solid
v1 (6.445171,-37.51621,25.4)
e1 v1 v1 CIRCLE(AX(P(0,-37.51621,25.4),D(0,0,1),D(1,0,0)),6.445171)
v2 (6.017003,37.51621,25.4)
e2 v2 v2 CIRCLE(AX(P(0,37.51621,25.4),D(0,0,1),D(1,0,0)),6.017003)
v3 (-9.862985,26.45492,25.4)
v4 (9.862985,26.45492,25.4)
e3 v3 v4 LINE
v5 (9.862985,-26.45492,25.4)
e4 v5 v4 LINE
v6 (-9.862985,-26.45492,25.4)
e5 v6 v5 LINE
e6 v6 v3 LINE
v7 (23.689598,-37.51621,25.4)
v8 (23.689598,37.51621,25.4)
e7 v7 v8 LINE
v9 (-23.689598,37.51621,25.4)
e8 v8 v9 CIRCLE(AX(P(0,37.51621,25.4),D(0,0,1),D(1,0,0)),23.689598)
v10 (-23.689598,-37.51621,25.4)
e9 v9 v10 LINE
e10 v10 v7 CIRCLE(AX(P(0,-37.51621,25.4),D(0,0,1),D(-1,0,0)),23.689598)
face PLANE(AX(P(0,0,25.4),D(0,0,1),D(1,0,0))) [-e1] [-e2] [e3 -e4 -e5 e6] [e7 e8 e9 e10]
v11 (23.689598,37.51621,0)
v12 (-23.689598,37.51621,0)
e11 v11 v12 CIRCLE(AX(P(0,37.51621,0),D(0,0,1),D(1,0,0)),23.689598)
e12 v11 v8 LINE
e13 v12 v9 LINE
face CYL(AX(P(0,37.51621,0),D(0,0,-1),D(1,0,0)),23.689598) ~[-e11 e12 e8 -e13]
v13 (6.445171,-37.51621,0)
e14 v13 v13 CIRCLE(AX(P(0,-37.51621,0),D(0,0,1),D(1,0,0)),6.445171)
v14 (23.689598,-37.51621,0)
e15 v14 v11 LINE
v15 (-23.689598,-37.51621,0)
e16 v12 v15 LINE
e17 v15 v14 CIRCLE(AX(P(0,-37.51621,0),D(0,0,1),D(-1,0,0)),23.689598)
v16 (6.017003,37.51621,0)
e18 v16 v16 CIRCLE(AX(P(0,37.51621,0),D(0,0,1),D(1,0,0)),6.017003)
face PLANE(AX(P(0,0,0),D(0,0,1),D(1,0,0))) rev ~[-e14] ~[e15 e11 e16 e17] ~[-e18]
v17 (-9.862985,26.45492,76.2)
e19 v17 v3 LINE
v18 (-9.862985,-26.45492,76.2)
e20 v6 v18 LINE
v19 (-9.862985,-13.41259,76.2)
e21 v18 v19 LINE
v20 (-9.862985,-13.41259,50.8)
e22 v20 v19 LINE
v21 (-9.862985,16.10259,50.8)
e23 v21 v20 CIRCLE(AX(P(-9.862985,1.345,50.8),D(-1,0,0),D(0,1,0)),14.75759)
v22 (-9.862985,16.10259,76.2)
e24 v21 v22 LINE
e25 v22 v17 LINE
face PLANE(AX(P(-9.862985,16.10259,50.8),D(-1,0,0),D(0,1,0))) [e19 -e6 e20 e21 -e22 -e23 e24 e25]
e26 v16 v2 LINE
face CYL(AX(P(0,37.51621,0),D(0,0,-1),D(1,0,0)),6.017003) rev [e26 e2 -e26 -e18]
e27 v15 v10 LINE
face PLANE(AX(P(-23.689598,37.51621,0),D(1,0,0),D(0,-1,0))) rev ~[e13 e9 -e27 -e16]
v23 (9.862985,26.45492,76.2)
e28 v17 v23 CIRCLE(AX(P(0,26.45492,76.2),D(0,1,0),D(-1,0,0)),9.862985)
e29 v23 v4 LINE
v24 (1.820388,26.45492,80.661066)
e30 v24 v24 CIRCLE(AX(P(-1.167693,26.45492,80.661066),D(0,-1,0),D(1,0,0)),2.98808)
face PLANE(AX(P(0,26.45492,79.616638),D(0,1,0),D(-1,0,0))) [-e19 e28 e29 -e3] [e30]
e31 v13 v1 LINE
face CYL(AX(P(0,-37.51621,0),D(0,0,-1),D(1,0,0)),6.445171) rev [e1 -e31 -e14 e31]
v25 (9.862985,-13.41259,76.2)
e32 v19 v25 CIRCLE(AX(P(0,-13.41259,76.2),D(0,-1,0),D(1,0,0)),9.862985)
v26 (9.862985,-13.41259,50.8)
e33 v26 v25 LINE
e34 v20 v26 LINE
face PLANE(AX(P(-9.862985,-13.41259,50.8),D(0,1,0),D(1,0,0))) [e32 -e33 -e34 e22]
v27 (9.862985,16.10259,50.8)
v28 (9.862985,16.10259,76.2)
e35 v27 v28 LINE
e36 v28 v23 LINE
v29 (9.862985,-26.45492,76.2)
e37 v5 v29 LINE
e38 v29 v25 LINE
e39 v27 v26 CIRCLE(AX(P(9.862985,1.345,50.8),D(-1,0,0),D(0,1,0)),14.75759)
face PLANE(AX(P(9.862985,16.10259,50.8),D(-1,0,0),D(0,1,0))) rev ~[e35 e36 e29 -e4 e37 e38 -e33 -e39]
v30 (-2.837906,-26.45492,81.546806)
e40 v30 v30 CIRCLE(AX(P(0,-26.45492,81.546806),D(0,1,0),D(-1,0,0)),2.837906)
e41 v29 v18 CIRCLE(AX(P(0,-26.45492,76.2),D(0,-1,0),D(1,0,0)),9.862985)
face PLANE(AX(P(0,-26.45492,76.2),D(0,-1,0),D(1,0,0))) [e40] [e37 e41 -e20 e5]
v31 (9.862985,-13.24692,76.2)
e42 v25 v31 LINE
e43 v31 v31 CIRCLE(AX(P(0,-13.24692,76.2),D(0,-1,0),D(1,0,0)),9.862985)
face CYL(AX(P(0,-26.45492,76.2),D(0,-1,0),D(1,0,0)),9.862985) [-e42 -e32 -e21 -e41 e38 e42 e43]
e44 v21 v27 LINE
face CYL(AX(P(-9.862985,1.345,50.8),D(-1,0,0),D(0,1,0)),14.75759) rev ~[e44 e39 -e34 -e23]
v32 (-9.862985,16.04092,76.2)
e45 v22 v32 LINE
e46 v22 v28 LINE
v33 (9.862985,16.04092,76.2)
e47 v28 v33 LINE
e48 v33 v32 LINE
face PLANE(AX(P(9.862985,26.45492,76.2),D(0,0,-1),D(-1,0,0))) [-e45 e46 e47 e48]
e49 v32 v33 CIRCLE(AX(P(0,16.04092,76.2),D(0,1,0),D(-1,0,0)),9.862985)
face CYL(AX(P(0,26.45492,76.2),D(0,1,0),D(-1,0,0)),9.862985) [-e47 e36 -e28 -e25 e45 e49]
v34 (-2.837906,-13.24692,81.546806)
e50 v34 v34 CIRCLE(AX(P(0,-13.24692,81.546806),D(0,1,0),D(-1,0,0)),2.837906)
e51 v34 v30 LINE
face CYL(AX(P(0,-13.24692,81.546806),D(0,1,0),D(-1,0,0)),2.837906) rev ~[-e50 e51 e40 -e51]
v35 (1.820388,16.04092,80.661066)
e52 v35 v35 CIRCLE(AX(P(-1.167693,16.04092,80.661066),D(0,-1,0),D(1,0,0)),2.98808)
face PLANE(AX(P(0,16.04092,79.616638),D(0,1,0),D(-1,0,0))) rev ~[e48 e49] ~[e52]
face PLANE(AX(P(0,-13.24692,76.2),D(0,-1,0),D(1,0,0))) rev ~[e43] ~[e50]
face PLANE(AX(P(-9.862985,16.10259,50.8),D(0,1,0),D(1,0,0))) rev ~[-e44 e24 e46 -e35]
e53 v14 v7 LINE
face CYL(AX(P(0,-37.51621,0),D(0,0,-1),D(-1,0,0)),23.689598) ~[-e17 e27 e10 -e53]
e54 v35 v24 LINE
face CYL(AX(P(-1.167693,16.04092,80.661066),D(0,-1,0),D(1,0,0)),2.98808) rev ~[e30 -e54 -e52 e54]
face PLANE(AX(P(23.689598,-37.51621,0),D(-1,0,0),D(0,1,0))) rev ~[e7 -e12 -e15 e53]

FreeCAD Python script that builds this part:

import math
import FreeCAD as App
import Part
import Sketcher
from FreeCAD import Vector
Q = App.Units.Quantity


def add_polygon(sketch, points):
    """Adds a closed chain of lines whose ends are joined by coincident constraints."""
    first, n = sketch.GeometryCount, len(points)
    for a, b in zip(points, points[1:] + points[:1]):
        sketch.addGeometry(Part.LineSegment(App.Vector(*a, 0), App.Vector(*b, 0)), False)
    for i in range(n):
        sketch.addConstraint(Sketcher.Constraint("Coincident", first + i, 2, first + (i + 1) % n, 1))

doc = App.newDocument("Part")
body = doc.addObject("PartDesign::Body", "Body")

# Sketch on XY plane
sketch1 = body.newObject("Sketcher::SketchObject", "Sketch")
sketch1.AttachmentSupport = (doc.getObject("XY_Plane"), [""])
sketch1.MapMode = "FlatFace"
sketch1.addGeometry([
    Part.LineSegment(Vector(23.689598, -37.51621, 0), Vector(23.689598, 37.51621, 0)),  # 0
    Part.ArcOfCircle(Part.Circle(Vector(0, 37.51621, 0), Vector(0, 0, 1), 23.689598), math.radians(0), math.radians(180)),  # 1
    Part.LineSegment(Vector(-23.689598, 37.51621, 0), Vector(-23.689598, -37.51621, 0)),  # 2
    Part.ArcOfCircle(Part.Circle(Vector(0, -37.51621, 0), Vector(0, 0, 1), 23.689598), math.radians(180), math.radians(360)),  # 3
    Part.Circle(Vector(0, -37.51621, 0), Vector(0, 0, 1), 6.445171),  # 4
    Part.Circle(Vector(0, 37.51621, 0), Vector(0, 0, 1), 6.017003),  # 5
], False)
sketch1.addConstraint([
    Sketcher.Constraint("Tangent", 0, 2, 1, 1),
    Sketcher.Constraint("Tangent", 1, 2, 2, 1),
    Sketcher.Constraint("Tangent", 2, 2, 3, 1),
    Sketcher.Constraint("Tangent", 3, 2, 0, 1),
    Sketcher.Constraint("Vertical", 0),
    Sketcher.Constraint("Vertical", 2),
    Sketcher.Constraint("Coincident", 4, 3, 3, 3),
    Sketcher.Constraint("Coincident", 5, 3, 1, 3),
    Sketcher.Constraint("Symmetric", 1, 3, 3, 3, -1, 1),
    Sketcher.Constraint("Diameter", 4, Q("12.890342 mm")),
    Sketcher.Constraint("Diameter", 5, Q("12.034007 mm")),
    Sketcher.Constraint("Radius", 1, Q("23.689598 mm")),
    Sketcher.Constraint("DistanceY", 0, 1, 0, 2, Q("75.03242 mm")),
])
pad1 = body.newObject("PartDesign::Pad", "Pad")
pad1.Profile = sketch1
pad1.Length = Q("1 in")

# Sketch on XY plane
sketch2 = body.newObject("Sketcher::SketchObject", "Sketch001")
sketch2.AttachmentSupport = (doc.getObject("XY_Plane"), [""])
sketch2.MapMode = "FlatFace"
sketch2.AttachmentOffset = App.Placement(Vector(0, 0, 1 * 25.4), App.Rotation())
add_polygon(sketch2, [(-9.862985, 26.45492), (-9.862985, -26.45492), (9.862985, -26.45492), (9.862985, 26.45492)])  # lines 0-3
sketch2.addConstraint([
    Sketcher.Constraint("Vertical", 0),
    Sketcher.Constraint("Horizontal", 1),
    Sketcher.Constraint("Vertical", 2),
    Sketcher.Constraint("Horizontal", 3),
    Sketcher.Constraint("Symmetric", 0, 2, 2, 2, -1, 1),
    Sketcher.Constraint("DistanceX", 1, 1, 1, 2, Q("19.725969 mm")),
    Sketcher.Constraint("DistanceY", 0, 2, 0, 1, Q("52.90984 mm")),
])
pad2 = body.newObject("PartDesign::Pad", "Pad001")
pad2.Profile = sketch2
pad2.Length = Q("1 in")

# Sketch on XY plane
sketch3 = body.newObject("Sketcher::SketchObject", "Sketch002")
sketch3.AttachmentSupport = (doc.getObject("XY_Plane"), [""])
sketch3.MapMode = "FlatFace"
sketch3.AttachmentOffset = App.Placement(Vector(0, 0, 2 * 25.4), App.Rotation())
add_polygon(sketch3, [(-9.862985, -13.41259), (-9.862985, -26.45492), (9.862985, -26.45492), (9.862985, -13.41259)])  # lines 0-3
sketch3.addConstraint([
    Sketcher.Constraint("Vertical", 0),
    Sketcher.Constraint("Horizontal", 1),
    Sketcher.Constraint("Vertical", 2),
    Sketcher.Constraint("Horizontal", 3),
    Sketcher.Constraint("DistanceX", 1, 1, 1, 2, Q("19.725969 mm")),
    Sketcher.Constraint("DistanceY", 0, 2, 0, 1, Q("13.04233 mm")),
    Sketcher.Constraint("DistanceY", 0, 2, -1, 1, Q("26.45492 mm")),
    Sketcher.Constraint("DistanceX", 0, 2, -1, 1, Q("9.862985 mm")),
])
pad3 = body.newObject("PartDesign::Pad", "Pad002")
pad3.Profile = sketch3
pad3.Length = Q("1 in")

# Sketch on XY plane
sketch4 = body.newObject("Sketcher::SketchObject", "Sketch003")
sketch4.AttachmentSupport = (doc.getObject("XY_Plane"), [""])
sketch4.MapMode = "FlatFace"
sketch4.AttachmentOffset = App.Placement(Vector(0, 0, 2 * 25.4), App.Rotation())
add_polygon(sketch4, [(-9.862985, 26.45492), (-9.862985, 16.10259), (9.862985, 16.10259), (9.862985, 26.45492)])  # lines 0-3
sketch4.addConstraint([
    Sketcher.Constraint("Vertical", 0),
    Sketcher.Constraint("Horizontal", 1),
    Sketcher.Constraint("Vertical", 2),
    Sketcher.Constraint("Horizontal", 3),
    Sketcher.Constraint("DistanceX", 1, 1, 1, 2, Q("19.725969 mm")),
    Sketcher.Constraint("DistanceY", 0, 2, 0, 1, Q("10.35233 mm")),
    Sketcher.Constraint("DistanceY", -1, 1, 0, 2, Q("16.10259 mm")),
    Sketcher.Constraint("DistanceX", 0, 2, -1, 1, Q("9.862985 mm")),
])
pad4 = body.newObject("PartDesign::Pad", "Pad003")
pad4.Profile = sketch4
pad4.Length = Q("1 in")

# Sketch on XZ plane
sketch5 = body.newObject("Sketcher::SketchObject", "Sketch004")
sketch5.AttachmentSupport = (doc.getObject("XZ_Plane"), [""])
sketch5.MapMode = "FlatFace"
sketch5.AttachmentOffset = App.Placement(Vector(0, 0, 26.45492), App.Rotation())
sketch5.addGeometry(Part.Circle(Vector(0, 76.2, 0), Vector(0, 0, 1), 9.862985), False)
sketch5.addConstraint([
    Sketcher.Constraint("PointOnObject", 0, 3, -2),
    Sketcher.Constraint("DistanceY", -1, 1, 0, 3, Q("3 in")),
    Sketcher.Constraint("Diameter", 0, Q("19.725969 mm")),
])
pad5 = body.newObject("PartDesign::Pad", "Pad004")
pad5.Profile = sketch5
pad5.Length = Q("0.52 in")
pad5.Reversed = True

# Sketch on XZ plane
sketch6 = body.newObject("Sketcher::SketchObject", "Sketch005")
sketch6.AttachmentSupport = (doc.getObject("XZ_Plane"), [""])
sketch6.MapMode = "FlatFace"
sketch6.AttachmentOffset = App.Placement(Vector(0, 0, -26.45492), App.Rotation())
sketch6.addGeometry([
    Part.LineSegment(Vector(9.862985, 76.2, 0), Vector(-9.862985, 76.2, 0)),
    Part.ArcOfCircle(Part.Circle(Vector(0, 76.2, 0), Vector(0, 0, 1), 9.862985), math.radians(0), math.radians(180)),
], False)
sketch6.addConstraint([
    Sketcher.Constraint("Coincident", 0, 1, 1, 1),
    Sketcher.Constraint("Coincident", 1, 2, 0, 2),
    Sketcher.Constraint("Horizontal", 0),
    Sketcher.Constraint("PointOnObject", 1, 3, -2),
    Sketcher.Constraint("Horizontal", 1, 3, 0, 1),
    Sketcher.Constraint("DistanceY", -1, 1, 1, 3, Q("3 in")),
    Sketcher.Constraint("Radius", 1, Q("9.862985 mm")),
])
pad6 = body.newObject("PartDesign::Pad", "Pad005")
pad6.Profile = sketch6
pad6.Length = Q("0.41 in")

# Sketch on XZ plane
sketch7 = body.newObject("Sketcher::SketchObject", "Sketch006")
sketch7.AttachmentSupport = (doc.getObject("XZ_Plane"), [""])
sketch7.MapMode = "FlatFace"
sketch7.AttachmentOffset = App.Placement(Vector(0, 0, -16.04092), App.Rotation())
sketch7.addGeometry(Part.Circle(Vector(-1.167693, 80.661066, 0), Vector(0, 0, 1), 2.98808), False)
sketch7.addConstraint([
    Sketcher.Constraint("Diameter", 0, Q("5.976161 mm")),
    Sketcher.Constraint("DistanceX", 0, 3, -1, 1, Q("1.167693 mm")),
    Sketcher.Constraint("DistanceY", -1, 1, 0, 3, Q("80.661066 mm")),
])
pocket1 = body.newObject("PartDesign::Pocket", "Pocket")
pocket1.Profile = sketch7
pocket1.Length = Q("1 in")

# Sketch on XZ plane
sketch8 = body.newObject("Sketcher::SketchObject", "Sketch007")
sketch8.AttachmentSupport = (doc.getObject("XZ_Plane"), [""])
sketch8.MapMode = "FlatFace"
sketch8.AttachmentOffset = App.Placement(Vector(0, 0, 13.24692), App.Rotation())
sketch8.addGeometry(Part.Circle(Vector(0, 81.546806, 0), Vector(0, 0, 1), 2.837906), False)
sketch8.addConstraint([
    Sketcher.Constraint("PointOnObject", 0, 3, -2),
    Sketcher.Constraint("Diameter", 0, Q("5.675812 mm")),
    Sketcher.Constraint("DistanceY", -1, 1, 0, 3, Q("81.546806 mm")),
])
pocket2 = body.newObject("PartDesign::Pocket", "Pocket001")
pocket2.Profile = sketch8
pocket2.Length = Q("1 in")
pocket2.Reversed = True

# Sketch on YZ plane
sketch9 = body.newObject("Sketcher::SketchObject", "Sketch008")
sketch9.AttachmentSupport = (doc.getObject("YZ_Plane"), [""])
sketch9.MapMode = "FlatFace"
sketch9.AttachmentOffset = App.Placement(Vector(0, 0, -9.862985), App.Rotation())
sketch9.addGeometry([
    Part.ArcOfCircle(Part.Circle(Vector(1.345, 50.8, 0), Vector(0, 0, 1), 14.75759), math.radians(180), math.radians(360)),
    Part.LineSegment(Vector(-13.41259, 50.8, 0), Vector(16.10259, 50.8, 0)),
], False)
sketch9.addConstraint([
    Sketcher.Constraint("Coincident", 0, 1, 1, 1),
    Sketcher.Constraint("Coincident", 1, 2, 0, 2),
    Sketcher.Constraint("Horizontal", 1),
    Sketcher.Constraint("DistanceY", -1, 1, 0, 3, Q("2 in")),
    Sketcher.Constraint("DistanceY", -1, 1, 0, 1, Q("2 in")),
    Sketcher.Constraint("Radius", 0, Q("14.75759 mm")),
    Sketcher.Constraint("DistanceX", -1, 1, 0, 3, Q("1.345 mm")),
])
pocket3 = body.newObject("PartDesign::Pocket", "Pocket002")
pocket3.Profile = sketch9
pocket3.Length = Q("2 in")
pocket3.Reversed = True

doc.recompute()
